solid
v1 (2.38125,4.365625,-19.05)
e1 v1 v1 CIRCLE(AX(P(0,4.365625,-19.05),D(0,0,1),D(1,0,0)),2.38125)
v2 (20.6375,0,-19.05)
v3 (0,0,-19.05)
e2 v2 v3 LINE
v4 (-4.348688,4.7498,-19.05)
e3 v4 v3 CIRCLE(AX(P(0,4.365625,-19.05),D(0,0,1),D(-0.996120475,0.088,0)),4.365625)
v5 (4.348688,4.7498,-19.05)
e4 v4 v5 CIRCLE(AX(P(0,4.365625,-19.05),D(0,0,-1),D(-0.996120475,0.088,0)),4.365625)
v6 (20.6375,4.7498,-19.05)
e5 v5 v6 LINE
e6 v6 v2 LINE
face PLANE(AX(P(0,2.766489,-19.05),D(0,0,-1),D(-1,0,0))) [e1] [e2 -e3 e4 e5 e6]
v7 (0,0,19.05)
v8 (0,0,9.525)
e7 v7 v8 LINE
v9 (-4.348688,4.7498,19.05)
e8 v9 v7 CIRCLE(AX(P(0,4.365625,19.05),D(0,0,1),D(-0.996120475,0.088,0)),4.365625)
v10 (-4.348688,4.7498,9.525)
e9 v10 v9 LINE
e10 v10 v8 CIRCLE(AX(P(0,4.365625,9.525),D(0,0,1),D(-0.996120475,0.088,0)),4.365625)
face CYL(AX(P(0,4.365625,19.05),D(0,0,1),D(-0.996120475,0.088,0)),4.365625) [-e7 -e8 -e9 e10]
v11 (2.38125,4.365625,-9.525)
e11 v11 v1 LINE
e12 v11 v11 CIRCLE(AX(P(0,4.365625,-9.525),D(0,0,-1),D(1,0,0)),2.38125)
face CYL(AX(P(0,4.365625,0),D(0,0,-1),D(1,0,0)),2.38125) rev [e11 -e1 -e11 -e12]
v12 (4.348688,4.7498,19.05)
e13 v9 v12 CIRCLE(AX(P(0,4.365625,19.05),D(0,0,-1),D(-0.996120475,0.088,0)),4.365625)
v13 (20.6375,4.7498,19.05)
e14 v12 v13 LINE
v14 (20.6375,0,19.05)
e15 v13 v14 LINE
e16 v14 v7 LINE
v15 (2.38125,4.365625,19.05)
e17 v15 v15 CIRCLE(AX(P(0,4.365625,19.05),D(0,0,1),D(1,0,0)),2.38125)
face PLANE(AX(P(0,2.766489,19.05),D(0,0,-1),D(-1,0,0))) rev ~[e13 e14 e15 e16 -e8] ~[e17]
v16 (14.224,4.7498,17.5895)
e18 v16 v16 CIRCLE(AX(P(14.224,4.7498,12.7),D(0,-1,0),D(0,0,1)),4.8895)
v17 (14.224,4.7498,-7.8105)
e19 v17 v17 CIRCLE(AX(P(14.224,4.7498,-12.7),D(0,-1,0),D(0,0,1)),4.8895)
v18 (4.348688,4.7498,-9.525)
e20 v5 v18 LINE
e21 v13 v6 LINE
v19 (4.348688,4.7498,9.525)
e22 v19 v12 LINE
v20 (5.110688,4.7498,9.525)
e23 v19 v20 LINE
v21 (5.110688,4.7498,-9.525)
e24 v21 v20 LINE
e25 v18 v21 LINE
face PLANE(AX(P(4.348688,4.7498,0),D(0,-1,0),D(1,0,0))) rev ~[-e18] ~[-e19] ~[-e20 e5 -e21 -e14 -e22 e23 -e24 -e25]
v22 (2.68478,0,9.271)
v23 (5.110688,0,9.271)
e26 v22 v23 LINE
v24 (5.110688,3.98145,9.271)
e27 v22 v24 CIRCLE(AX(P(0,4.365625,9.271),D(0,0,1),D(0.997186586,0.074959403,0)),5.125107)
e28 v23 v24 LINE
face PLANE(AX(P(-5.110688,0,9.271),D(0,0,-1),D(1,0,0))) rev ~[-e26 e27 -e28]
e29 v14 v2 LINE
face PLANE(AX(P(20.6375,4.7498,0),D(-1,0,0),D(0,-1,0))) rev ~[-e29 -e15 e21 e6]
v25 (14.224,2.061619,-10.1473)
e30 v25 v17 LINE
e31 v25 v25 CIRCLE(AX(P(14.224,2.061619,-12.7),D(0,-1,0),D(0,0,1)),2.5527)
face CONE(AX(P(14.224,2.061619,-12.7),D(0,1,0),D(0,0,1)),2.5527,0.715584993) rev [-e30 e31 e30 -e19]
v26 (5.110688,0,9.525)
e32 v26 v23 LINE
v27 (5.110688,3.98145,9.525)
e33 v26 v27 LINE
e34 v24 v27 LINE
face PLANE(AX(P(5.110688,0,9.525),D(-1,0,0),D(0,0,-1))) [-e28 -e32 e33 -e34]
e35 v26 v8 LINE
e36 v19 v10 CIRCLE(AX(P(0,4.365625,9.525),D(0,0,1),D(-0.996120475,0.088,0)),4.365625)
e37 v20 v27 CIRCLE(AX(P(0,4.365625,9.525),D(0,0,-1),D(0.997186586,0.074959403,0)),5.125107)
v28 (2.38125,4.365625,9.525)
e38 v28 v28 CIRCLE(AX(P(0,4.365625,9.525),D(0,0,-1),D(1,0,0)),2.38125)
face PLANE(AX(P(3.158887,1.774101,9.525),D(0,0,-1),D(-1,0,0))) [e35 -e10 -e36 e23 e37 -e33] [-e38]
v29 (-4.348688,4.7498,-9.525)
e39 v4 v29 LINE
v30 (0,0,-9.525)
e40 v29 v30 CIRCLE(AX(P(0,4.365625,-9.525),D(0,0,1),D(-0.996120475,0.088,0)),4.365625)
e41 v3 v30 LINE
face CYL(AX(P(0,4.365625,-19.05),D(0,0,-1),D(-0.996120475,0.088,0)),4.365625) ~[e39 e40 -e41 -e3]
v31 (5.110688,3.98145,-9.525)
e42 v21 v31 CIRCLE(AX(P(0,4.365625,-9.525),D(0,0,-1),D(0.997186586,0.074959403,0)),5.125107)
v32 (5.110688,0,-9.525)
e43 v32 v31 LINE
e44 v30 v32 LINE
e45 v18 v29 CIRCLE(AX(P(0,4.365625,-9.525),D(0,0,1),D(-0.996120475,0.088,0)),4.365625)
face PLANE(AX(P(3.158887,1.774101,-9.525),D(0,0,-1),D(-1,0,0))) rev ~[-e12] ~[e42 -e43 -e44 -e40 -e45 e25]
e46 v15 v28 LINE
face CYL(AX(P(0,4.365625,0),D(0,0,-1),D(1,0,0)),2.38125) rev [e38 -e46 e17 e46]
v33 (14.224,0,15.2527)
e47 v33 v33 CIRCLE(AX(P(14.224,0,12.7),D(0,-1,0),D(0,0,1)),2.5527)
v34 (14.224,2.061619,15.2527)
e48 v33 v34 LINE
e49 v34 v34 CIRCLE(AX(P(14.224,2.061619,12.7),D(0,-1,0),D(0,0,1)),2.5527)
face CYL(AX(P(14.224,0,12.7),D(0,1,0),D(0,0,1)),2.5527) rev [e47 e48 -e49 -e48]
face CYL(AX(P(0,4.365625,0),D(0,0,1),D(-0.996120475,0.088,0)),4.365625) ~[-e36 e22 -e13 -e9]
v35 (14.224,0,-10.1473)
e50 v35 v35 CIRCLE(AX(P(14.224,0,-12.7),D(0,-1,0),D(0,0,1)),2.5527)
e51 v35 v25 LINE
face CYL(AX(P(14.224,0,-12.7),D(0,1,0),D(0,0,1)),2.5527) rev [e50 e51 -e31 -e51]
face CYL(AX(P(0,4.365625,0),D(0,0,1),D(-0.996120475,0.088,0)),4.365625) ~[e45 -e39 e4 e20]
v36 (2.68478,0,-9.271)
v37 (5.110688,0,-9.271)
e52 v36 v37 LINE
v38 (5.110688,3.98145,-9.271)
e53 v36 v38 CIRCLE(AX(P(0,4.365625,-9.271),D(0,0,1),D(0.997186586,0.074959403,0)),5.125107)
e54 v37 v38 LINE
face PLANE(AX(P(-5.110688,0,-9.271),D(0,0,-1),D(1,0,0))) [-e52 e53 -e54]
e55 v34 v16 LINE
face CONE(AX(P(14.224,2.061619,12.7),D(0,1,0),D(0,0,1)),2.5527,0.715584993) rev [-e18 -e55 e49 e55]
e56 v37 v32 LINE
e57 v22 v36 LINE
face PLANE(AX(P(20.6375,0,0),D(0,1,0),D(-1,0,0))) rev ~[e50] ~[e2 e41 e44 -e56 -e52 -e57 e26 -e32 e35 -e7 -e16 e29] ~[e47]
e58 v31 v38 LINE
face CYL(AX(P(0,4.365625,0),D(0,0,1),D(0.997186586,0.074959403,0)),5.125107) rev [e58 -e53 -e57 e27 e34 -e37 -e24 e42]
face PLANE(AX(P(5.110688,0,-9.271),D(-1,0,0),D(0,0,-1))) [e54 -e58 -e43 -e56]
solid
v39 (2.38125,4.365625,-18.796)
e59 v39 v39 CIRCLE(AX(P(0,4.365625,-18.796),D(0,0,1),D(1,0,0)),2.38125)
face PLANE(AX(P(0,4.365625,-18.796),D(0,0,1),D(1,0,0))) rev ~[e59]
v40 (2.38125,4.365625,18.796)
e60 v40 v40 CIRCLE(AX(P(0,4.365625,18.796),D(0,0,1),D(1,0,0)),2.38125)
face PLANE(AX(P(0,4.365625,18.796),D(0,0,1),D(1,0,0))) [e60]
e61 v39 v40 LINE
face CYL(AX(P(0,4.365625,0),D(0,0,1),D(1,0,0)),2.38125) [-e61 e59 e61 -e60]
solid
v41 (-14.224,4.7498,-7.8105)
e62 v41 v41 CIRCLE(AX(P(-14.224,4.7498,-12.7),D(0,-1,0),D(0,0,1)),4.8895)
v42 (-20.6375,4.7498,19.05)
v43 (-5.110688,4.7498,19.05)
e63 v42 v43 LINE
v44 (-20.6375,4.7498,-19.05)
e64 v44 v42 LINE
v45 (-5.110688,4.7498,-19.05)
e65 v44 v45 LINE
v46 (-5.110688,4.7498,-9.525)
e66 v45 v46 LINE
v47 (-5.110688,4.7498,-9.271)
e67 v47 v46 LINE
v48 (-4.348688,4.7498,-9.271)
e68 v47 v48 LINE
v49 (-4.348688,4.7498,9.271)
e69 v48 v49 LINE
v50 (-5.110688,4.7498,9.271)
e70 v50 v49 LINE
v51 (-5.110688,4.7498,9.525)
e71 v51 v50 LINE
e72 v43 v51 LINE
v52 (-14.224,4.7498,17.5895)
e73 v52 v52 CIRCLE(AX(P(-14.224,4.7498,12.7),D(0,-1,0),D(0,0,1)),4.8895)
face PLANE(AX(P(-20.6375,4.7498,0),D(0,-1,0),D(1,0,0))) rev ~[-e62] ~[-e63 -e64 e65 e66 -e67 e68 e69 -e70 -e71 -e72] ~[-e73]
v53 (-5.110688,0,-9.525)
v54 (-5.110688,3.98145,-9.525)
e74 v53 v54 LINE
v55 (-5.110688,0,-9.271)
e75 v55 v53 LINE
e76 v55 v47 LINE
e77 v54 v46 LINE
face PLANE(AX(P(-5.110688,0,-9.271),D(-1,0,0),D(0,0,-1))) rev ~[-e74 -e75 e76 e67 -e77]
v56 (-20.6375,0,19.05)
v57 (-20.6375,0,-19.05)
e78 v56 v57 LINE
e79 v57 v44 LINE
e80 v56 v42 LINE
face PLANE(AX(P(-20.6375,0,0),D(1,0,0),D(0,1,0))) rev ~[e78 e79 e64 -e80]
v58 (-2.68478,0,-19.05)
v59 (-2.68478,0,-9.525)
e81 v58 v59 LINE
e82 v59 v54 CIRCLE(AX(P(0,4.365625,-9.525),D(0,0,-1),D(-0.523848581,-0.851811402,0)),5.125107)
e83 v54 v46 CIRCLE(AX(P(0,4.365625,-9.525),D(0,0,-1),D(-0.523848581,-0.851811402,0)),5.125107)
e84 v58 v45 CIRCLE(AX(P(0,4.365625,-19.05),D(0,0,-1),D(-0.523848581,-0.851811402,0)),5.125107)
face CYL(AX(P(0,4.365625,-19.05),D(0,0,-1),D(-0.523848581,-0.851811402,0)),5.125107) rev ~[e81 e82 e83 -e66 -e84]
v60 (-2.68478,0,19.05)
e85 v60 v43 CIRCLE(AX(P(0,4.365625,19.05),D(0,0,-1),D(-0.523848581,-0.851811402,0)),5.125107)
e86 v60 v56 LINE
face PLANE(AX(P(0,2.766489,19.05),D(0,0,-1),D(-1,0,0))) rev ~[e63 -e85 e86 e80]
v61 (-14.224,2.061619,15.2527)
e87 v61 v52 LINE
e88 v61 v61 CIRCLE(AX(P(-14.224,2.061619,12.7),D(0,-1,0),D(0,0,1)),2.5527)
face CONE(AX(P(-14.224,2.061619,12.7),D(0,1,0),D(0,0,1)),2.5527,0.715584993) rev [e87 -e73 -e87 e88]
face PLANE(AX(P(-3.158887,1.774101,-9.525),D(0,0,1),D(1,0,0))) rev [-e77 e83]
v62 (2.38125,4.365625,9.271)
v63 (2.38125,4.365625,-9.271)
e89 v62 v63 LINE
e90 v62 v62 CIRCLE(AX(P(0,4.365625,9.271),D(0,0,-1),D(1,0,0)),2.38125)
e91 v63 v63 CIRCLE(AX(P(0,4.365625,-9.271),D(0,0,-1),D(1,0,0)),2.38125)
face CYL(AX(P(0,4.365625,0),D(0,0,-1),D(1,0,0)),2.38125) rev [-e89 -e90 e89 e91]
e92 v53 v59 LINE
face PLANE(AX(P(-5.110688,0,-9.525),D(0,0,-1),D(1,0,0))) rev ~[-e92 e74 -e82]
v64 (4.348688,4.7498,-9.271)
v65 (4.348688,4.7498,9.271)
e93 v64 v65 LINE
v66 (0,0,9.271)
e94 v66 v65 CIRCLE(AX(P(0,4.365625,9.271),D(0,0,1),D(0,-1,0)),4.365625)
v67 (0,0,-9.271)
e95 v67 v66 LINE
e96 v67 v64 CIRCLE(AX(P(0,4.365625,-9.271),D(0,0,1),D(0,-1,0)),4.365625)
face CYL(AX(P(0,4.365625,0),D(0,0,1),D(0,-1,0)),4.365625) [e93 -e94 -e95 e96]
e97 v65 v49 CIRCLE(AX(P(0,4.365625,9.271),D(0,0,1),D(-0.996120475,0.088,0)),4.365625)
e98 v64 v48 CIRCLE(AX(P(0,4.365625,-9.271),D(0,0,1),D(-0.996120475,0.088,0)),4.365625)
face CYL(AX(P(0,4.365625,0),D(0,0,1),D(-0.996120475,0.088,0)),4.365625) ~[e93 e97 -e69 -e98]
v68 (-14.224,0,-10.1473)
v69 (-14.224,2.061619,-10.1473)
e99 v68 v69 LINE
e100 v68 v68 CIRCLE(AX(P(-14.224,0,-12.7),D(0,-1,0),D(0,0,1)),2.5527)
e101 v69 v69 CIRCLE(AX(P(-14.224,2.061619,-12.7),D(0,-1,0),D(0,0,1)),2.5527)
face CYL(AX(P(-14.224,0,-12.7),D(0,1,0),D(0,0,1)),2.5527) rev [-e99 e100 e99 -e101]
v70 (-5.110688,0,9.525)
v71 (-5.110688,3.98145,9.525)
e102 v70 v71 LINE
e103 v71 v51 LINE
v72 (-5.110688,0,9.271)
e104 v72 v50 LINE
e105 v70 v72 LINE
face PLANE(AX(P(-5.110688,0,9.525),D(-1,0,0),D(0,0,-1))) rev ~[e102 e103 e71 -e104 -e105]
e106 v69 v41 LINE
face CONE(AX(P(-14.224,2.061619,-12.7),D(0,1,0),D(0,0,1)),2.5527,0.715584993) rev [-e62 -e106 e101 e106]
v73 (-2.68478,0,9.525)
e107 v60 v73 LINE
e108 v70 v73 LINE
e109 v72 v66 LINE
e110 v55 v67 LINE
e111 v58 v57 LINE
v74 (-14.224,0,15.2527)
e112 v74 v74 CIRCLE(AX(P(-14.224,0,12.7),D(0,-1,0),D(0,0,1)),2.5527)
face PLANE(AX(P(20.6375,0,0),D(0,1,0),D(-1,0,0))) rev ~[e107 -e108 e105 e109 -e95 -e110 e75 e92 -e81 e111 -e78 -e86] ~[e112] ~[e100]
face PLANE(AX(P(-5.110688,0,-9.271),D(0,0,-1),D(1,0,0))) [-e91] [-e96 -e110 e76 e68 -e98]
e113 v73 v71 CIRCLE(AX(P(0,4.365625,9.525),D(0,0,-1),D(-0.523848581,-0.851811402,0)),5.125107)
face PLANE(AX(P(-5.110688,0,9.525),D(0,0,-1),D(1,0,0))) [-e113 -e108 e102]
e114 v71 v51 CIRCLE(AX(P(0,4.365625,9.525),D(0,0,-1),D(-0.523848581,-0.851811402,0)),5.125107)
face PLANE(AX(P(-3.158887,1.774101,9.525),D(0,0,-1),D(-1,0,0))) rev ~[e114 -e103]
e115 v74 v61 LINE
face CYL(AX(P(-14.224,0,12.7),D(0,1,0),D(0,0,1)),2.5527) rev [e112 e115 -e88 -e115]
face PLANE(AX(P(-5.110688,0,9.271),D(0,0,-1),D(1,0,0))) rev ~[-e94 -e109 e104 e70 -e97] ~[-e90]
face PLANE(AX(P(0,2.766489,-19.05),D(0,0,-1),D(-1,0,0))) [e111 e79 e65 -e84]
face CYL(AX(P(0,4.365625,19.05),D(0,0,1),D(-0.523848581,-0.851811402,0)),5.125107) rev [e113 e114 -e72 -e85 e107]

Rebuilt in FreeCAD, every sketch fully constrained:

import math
import FreeCAD as App
import Part
import Sketcher
Q = App.Units.Quantity

doc = App.newDocument("Part")
body = doc.addObject("PartDesign::Body", "Body")
body.AllowCompound = True

# Sketch on XY plane
sketch1 = body.newObject("Sketcher::SketchObject", "Sketch")
sketch1.AttachmentSupport = (doc.getObject("XY_Plane"), [""])
sketch1.MapMode = "FlatFace"
sketch1.addGeometry(Part.LineSegment(App.Vector(20.6, 4.7, 0), App.Vector(4.3, 4.7, 0)), False)
sketch1.addGeometry(Part.ArcOfCircle(Part.Circle(App.Vector(0, 4.4, 0), App.Vector(0, 0, 1), 4.4), math.radians(5), math.radians(175)), False)
sketch1.addGeometry(Part.LineSegment(App.Vector(-4.3, 4.7, 0), App.Vector(-20.6, 4.7, 0)), False)
sketch1.addGeometry(Part.LineSegment(App.Vector(-20.6, 4.7, 0), App.Vector(-20.6, 0, 0)), False)
sketch1.addGeometry(Part.LineSegment(App.Vector(-20.6, 0, 0), App.Vector(20.6, 0, 0)), False)
sketch1.addGeometry(Part.LineSegment(App.Vector(20.6, 0, 0), App.Vector(20.6, 4.7, 0)), False)
sketch1.addGeometry(Part.Circle(App.Vector(0, 4.4, 0), App.Vector(0, 0, 1), 2.4), False)
sketch1.addConstraint(Sketcher.Constraint("Coincident", 0, 2, 1, 1))
sketch1.addConstraint(Sketcher.Constraint("Coincident", 1, 2, 2, 1))
sketch1.addConstraint(Sketcher.Constraint("Coincident", 2, 2, 3, 1))
sketch1.addConstraint(Sketcher.Constraint("Coincident", 3, 2, 4, 1))
sketch1.addConstraint(Sketcher.Constraint("Coincident", 4, 2, 5, 1))
sketch1.addConstraint(Sketcher.Constraint("Coincident", 5, 2, 0, 1))
sketch1.addConstraint(Sketcher.Constraint("Horizontal", 0))
sketch1.addConstraint(Sketcher.Constraint("Horizontal", 2))
sketch1.addConstraint(Sketcher.Constraint("Vertical", 3))
sketch1.addConstraint(Sketcher.Constraint("Horizontal", 4))
sketch1.addConstraint(Sketcher.Constraint("Vertical", 5))
sketch1.addConstraint(Sketcher.Constraint("Coincident", 6, 3, 1, 3))
sketch1.addConstraint(Sketcher.Constraint("Symmetric", 3, 2, 4, 2, -1, 1))
sketch1.addConstraint(Sketcher.Constraint("Symmetric", 0, 2, 1, 2, -2))
sketch1.addConstraint(Sketcher.Constraint("Diameter", 6, Q("0.1875 in")))
sketch1.addConstraint(Sketcher.Constraint("Radius", 1, Q("0.171875 in")))
sketch1.addConstraint(Sketcher.Constraint("DistanceX", 4, 1, 4, 2, Q("1.625 in")))
sketch1.addConstraint(Sketcher.Constraint("DistanceY", 3, 2, 3, 1, Q("0.187 in")))
sketch1.addConstraint(Sketcher.Constraint("DistanceY", -1, 1, 1, 3, Q("0.171875 in")))
pad1 = body.newObject("PartDesign::Pad", "Pad")
pad1.Profile = sketch1
pad1.Length = Q("1.5 in")
pad1.Midplane = True

# Sketch on XY plane
sketch2 = body.newObject("Sketcher::SketchObject", "Sketch001")
sketch2.AttachmentSupport = (doc.getObject("XY_Plane"), [""])
sketch2.MapMode = "FlatFace"
sketch2.AttachmentOffset = App.Placement(App.Vector(0, 0, 0.75 * 25.4), App.Rotation())
sketch2.addGeometry(Part.LineSegment(App.Vector(-4.3, 4.7, 0), App.Vector(-5.1, 4.7, 0)), False)
sketch2.addGeometry(Part.ArcOfCircle(Part.Circle(App.Vector(0, 4.4, 0), App.Vector(0, 0, 1), 5.1), math.radians(176), math.radians(238)), False)
sketch2.addGeometry(Part.LineSegment(App.Vector(-2.7, 0, 0), App.Vector(0, 0, 0)), False)
sketch2.addGeometry(Part.ArcOfCircle(Part.Circle(App.Vector(0, 4.4, 0), App.Vector(0, 0, 1), 4.4), math.radians(175), math.radians(270)), False)
sketch2.addConstraint(Sketcher.Constraint("Coincident", 0, 2, 1, 1))
sketch2.addConstraint(Sketcher.Constraint("Coincident", 1, 2, 2, 1))
sketch2.addConstraint(Sketcher.Constraint("Tangent", 2, 2, 3, 2))
sketch2.addConstraint(Sketcher.Constraint("Coincident", 3, 1, 0, 1))
sketch2.addConstraint(Sketcher.Constraint("Horizontal", 0))
sketch2.addConstraint(Sketcher.Constraint("Horizontal", 2))
sketch2.addConstraint(Sketcher.Constraint("Coincident", 2, 2, -1, 1))
sketch2.addConstraint(Sketcher.Constraint("Coincident", 3, 3, 1, 3))
sketch2.addConstraint(Sketcher.Constraint("Radius", 3, Q("0.171875 in")))
sketch2.addConstraint(Sketcher.Constraint("DistanceX", 0, 2, 0, 1, Q("0.03 in")))
sketch2.addConstraint(Sketcher.Constraint("DistanceX", 2, 1, 2, 2, Q("0.1057 in")))
pocket1 = body.newObject("PartDesign::Pocket", "Pocket")
pocket1.Profile = sketch2
pocket1.Length = Q("0.375 in")
doc.recompute()

mirrored = body.newObject("PartDesign::Mirrored", "Mirrored")
mirrored.Originals = [pocket1]
mirrored.MirrorPlane = (doc.getObject("XY_Plane"), [""])
body.Tip = mirrored

# Sketch on XY plane
sketch3 = body.newObject("Sketcher::SketchObject", "Sketch002")
sketch3.AttachmentSupport = (doc.getObject("XY_Plane"), [""])
sketch3.MapMode = "FlatFace"
sketch3.addGeometry(Part.LineSegment(App.Vector(5.1, 4.7, 0), App.Vector(4.3, 4.7, 0)), False)
sketch3.addGeometry(Part.ArcOfCircle(Part.Circle(App.Vector(0, 4.4, 0), App.Vector(0, 0, 1), 4.4), math.radians(-90), math.radians(5)), False)
sketch3.addGeometry(Part.LineSegment(App.Vector(0, 0, 0), App.Vector(2.7, 0, 0)), False)
sketch3.addGeometry(Part.ArcOfCircle(Part.Circle(App.Vector(0, 4.4, 0), App.Vector(0, 0, 1), 5.1), math.radians(-58), math.radians(4)), False)
sketch3.addConstraint(Sketcher.Constraint("Coincident", 0, 2, 1, 2))
sketch3.addConstraint(Sketcher.Constraint("Tangent", 1, 1, 2, 1))
sketch3.addConstraint(Sketcher.Constraint("Coincident", 2, 2, 3, 1))
sketch3.addConstraint(Sketcher.Constraint("Coincident", 3, 2, 0, 1))
sketch3.addConstraint(Sketcher.Constraint("Horizontal", 0))
sketch3.addConstraint(Sketcher.Constraint("Horizontal", 2))
sketch3.addConstraint(Sketcher.Constraint("Coincident", 1, 1, -1, 1))
sketch3.addConstraint(Sketcher.Constraint("Coincident", 3, 3, 1, 3))
sketch3.addConstraint(Sketcher.Constraint("Radius", 1, Q("0.171875 in")))
sketch3.addConstraint(Sketcher.Constraint("DistanceX", 0, 2, 0, 1, Q("0.03 in")))
sketch3.addConstraint(Sketcher.Constraint("DistanceX", 2, 1, 2, 2, Q("0.1057 in")))
pocket2 = body.newObject("PartDesign::Pocket", "Pocket001")
pocket2.Profile = sketch3
pocket2.Length = Q("0.75 in")
pocket2.Midplane = True

# Sketch on XZ plane
sketch4 = body.newObject("Sketcher::SketchObject", "Sketch003")
sketch4.AttachmentSupport = (doc.getObject("XZ_Plane"), [""])
sketch4.MapMode = "FlatFace"
sketch4.addGeometry(Part.LineSegment(App.Vector(-5.11, -9.53, 0), App.Vector(-5.11, -9.27, 0)), False)
sketch4.addGeometry(Part.LineSegment(App.Vector(-5.11, -9.27, 0), App.Vector(5.11, -9.27, 0)), False)
sketch4.addGeometry(Part.LineSegment(App.Vector(5.11, -9.27, 0), App.Vector(5.11, -9.53, 0)), False)
sketch4.addGeometry(Part.LineSegment(App.Vector(5.11, -9.53, 0), App.Vector(-5.11, -9.53, 0)), False)
sketch4.addGeometry(Part.LineSegment(App.Vector(-5.11, 9.27, 0), App.Vector(-5.11, 9.53, 0)), False)
sketch4.addGeometry(Part.LineSegment(App.Vector(-5.11, 9.53, 0), App.Vector(5.11, 9.53, 0)), False)
sketch4.addGeometry(Part.LineSegment(App.Vector(5.11, 9.53, 0), App.Vector(5.11, 9.27, 0)), False)
sketch4.addGeometry(Part.LineSegment(App.Vector(5.11, 9.27, 0), App.Vector(-5.11, 9.27, 0)), False)
sketch4.addConstraint(Sketcher.Constraint("Coincident", 0, 2, 1, 1))
sketch4.addConstraint(Sketcher.Constraint("Coincident", 1, 2, 2, 1))
sketch4.addConstraint(Sketcher.Constraint("Coincident", 2, 2, 3, 1))
sketch4.addConstraint(Sketcher.Constraint("Coincident", 3, 2, 0, 1))
sketch4.addConstraint(Sketcher.Constraint("Coincident", 4, 2, 5, 1))
sketch4.addConstraint(Sketcher.Constraint("Coincident", 5, 2, 6, 1))
sketch4.addConstraint(Sketcher.Constraint("Coincident", 6, 2, 7, 1))
sketch4.addConstraint(Sketcher.Constraint("Coincident", 7, 2, 4, 1))
sketch4.addConstraint(Sketcher.Constraint("Vertical", 0))
sketch4.addConstraint(Sketcher.Constraint("Horizontal", 1))
sketch4.addConstraint(Sketcher.Constraint("Vertical", 2))
sketch4.addConstraint(Sketcher.Constraint("Horizontal", 3))
sketch4.addConstraint(Sketcher.Constraint("Vertical", 4))
sketch4.addConstraint(Sketcher.Constraint("Horizontal", 5))
sketch4.addConstraint(Sketcher.Constraint("Vertical", 6))
sketch4.addConstraint(Sketcher.Constraint("Horizontal", 7))
sketch4.addConstraint(Sketcher.Constraint("Symmetric", 2, 2, 4, 2, -1, 1))
sketch4.addConstraint(Sketcher.Constraint("Symmetric", 0, 2, 6, 2, -1, 1))
sketch4.addConstraint(Sketcher.Constraint("Vertical", 3, 2, 4, 2))
sketch4.addConstraint(Sketcher.Constraint("DistanceY", 0, 1, 0, 2, Q("0.01 in")))
sketch4.addConstraint(Sketcher.Constraint("DistanceY", 0, 2, 4, 2, Q("0.74 in")))
sketch4.addConstraint(Sketcher.Constraint("DistanceX", 1, 1, 1, 2, 10.221377))
pocket3 = body.newObject("PartDesign::Pocket", "Pocket002")
pocket3.Profile = sketch4
pocket3.Type = "ThroughAll"

# Sketch on YZ plane
sketch5 = body.newObject("Sketcher::SketchObject", "Sketch004")
sketch5.AttachmentSupport = (doc.getObject("YZ_Plane"), [""])
sketch5.MapMode = "FlatFace"
sketch5.AttachmentOffset = App.Placement(App.Vector(0, 0, -0.56 * 25.4), App.Rotation())
sketch5.addGeometry(Part.LineSegment(App.Vector(0, -12.7, 0), App.Vector(4.7, -12.7, 0)), False)
sketch5.addGeometry(Part.LineSegment(App.Vector(4.7, -12.7, 0), App.Vector(4.7, -7.8, 0)), False)
sketch5.addGeometry(Part.LineSegment(App.Vector(4.7, -7.8, 0), App.Vector(2.1, -10.1, 0)), False)
sketch5.addGeometry(Part.LineSegment(App.Vector(2.1, -10.1, 0), App.Vector(0, -10.1, 0)), False)
sketch5.addGeometry(Part.LineSegment(App.Vector(0, -10.1, 0), App.Vector(0, -12.7, 0)), False)
sketch5.addGeometry(Part.LineSegment(App.Vector(4.7, -12.7, 0), App.Vector(0, -12.7, 0)), True)  # axis
sketch5.addConstraint(Sketcher.Constraint("Coincident", 0, 2, 1, 1))
sketch5.addConstraint(Sketcher.Constraint("Coincident", 1, 2, 2, 1))
sketch5.addConstraint(Sketcher.Constraint("Coincident", 2, 2, 3, 1))
sketch5.addConstraint(Sketcher.Constraint("Coincident", 3, 2, 4, 1))
sketch5.addConstraint(Sketcher.Constraint("Coincident", 4, 2, 0, 1))
sketch5.addConstraint(Sketcher.Constraint("Horizontal", 0))
sketch5.addConstraint(Sketcher.Constraint("Vertical", 1))
sketch5.addConstraint(Sketcher.Constraint("Horizontal", 3))
sketch5.addConstraint(Sketcher.Constraint("Vertical", 4))
sketch5.addConstraint(Sketcher.Constraint("Horizontal", 5))
sketch5.addConstraint(Sketcher.Constraint("Coincident", 5, 1, 0, 2))
sketch5.addConstraint(Sketcher.Constraint("PointOnObject", 3, 2, -2))
sketch5.addConstraint(Sketcher.Constraint("PointOnObject", 5, 2, -2))
sketch5.addConstraint(Sketcher.Constraint("Angle", 2, Q("-139 deg")))
sketch5.addConstraint(Sketcher.Constraint("DistanceY", 0, 2, -1, 1, Q("0.5 in")))
sketch5.addConstraint(Sketcher.Constraint("DistanceX", 0, 1, 0, 2, Q("0.187 in")))
sketch5.addConstraint(Sketcher.Constraint("DistanceY", 1, 1, 1, 2, Q("0.1925 in")))
sketch5.addConstraint(Sketcher.Constraint("DistanceY", 4, 2, 4, 1, Q("0.1005 in")))
groove = body.newObject("PartDesign::Groove", "Groove")
groove.Profile = sketch5
groove.ReferenceAxis = (sketch5, ["Axis0"])
groove.Angle = 360
doc.recompute()

linearpattern = body.newObject("PartDesign::LinearPattern", "LinearPattern")
linearpattern.Originals = [groove]
linearpattern.Direction = (doc.getObject("Z_Axis"), [""])
linearpattern.Mode = "offset"
linearpattern.Offset = Q("1 in")
linearpattern.Occurrences = 2
body.Tip = linearpattern
doc.recompute()

datumline = body.newObject("PartDesign::Line", "DatumLine")
datumline.Placement = App.Placement(App.Vector(0, 0, 0), App.Rotation(App.Vector(0, 0, 1), App.Vector(0.745937662, 0, 0.666015769)))
linearpattern2 = body.newObject("PartDesign::LinearPattern", "LinearPattern001")
linearpattern2.Originals = [groove]
linearpattern2.Direction = (datumline, [""])
linearpattern2.Mode = "offset"
linearpattern2.Offset = 38.137235
linearpattern2.Occurrences = 2
body.Tip = linearpattern2
doc.recompute()

linearpattern3 = body.newObject("PartDesign::LinearPattern", "LinearPattern002")
linearpattern3.Originals = [groove]
linearpattern3.Direction = (doc.getObject("X_Axis"), [""])
linearpattern3.Mode = "offset"
linearpattern3.Offset = Q("1.12 in")
linearpattern3.Occurrences = 2
body.Tip = linearpattern3
body2 = doc.addObject("PartDesign::Body", "Body001")

# Sketch on XY plane
sketch6 = body2.newObject("Sketcher::SketchObject", "Sketch005")
sketch6.AttachmentSupport = (doc.getObject("XY_Plane001"), [""])
sketch6.MapMode = "FlatFace"
sketch6.addGeometry(Part.Circle(App.Vector(0, 4.4, 0), App.Vector(0, 0, 1), 2.4), False)
sketch6.addConstraint(Sketcher.Constraint("PointOnObject", 0, 3, -2))
sketch6.addConstraint(Sketcher.Constraint("Diameter", 0, Q("0.1875 in")))
sketch6.addConstraint(Sketcher.Constraint("DistanceY", -1, 1, 0, 3, Q("0.171875 in")))
pad2 = body2.newObject("PartDesign::Pad", "Pad001")
pad2.Profile = sketch6
pad2.Length = Q("1.48 in")
pad2.Midplane = True

doc.recompute()
